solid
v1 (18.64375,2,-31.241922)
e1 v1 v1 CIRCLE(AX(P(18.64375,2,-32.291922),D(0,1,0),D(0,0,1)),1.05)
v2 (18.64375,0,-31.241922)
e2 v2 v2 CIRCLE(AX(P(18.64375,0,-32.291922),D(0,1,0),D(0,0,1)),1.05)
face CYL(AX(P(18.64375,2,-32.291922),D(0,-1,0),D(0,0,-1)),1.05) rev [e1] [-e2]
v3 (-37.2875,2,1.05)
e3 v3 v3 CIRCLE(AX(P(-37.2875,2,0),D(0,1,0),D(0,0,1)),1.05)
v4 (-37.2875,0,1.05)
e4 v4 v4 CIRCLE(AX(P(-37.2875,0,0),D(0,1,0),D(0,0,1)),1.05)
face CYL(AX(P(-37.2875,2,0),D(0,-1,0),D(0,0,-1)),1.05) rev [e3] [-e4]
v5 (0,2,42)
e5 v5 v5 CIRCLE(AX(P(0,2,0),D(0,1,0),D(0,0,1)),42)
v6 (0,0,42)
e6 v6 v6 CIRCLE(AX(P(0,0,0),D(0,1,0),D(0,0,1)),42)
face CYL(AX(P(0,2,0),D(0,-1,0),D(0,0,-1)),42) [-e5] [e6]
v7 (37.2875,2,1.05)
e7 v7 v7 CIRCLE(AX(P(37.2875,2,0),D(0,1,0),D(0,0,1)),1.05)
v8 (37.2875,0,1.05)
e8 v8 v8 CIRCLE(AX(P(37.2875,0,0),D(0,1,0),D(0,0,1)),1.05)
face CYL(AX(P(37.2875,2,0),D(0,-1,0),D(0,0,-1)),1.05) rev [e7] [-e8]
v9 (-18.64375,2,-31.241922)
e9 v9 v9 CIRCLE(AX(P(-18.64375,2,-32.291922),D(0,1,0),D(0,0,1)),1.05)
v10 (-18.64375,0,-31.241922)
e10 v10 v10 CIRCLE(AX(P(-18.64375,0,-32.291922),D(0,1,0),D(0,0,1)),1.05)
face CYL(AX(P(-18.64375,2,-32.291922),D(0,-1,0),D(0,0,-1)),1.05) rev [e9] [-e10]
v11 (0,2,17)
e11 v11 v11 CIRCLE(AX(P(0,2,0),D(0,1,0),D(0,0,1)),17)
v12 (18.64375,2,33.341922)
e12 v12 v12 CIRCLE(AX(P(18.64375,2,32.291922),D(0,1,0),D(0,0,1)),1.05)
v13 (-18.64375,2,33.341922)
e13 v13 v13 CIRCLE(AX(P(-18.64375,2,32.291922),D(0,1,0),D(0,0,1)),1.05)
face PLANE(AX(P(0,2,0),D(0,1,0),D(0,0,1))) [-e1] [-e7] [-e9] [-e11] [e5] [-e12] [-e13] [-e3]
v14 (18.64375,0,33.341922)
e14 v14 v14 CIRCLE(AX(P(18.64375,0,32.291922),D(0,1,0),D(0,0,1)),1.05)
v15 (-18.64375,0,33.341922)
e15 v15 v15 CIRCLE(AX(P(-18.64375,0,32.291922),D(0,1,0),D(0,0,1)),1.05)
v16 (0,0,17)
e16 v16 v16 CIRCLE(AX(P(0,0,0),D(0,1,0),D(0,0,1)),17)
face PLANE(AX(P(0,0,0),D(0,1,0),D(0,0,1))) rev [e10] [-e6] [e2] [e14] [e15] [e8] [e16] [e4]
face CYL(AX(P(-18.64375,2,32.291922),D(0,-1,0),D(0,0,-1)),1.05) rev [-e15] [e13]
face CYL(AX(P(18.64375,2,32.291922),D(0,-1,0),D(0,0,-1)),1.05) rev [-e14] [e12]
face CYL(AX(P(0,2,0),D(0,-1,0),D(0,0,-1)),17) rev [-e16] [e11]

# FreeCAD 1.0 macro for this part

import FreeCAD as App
import Part
import Sketcher
Q = App.Units.Quantity

doc = App.newDocument("Part")
body = doc.addObject("PartDesign::Body", "Body")

# Sketch on XZ plane
sketch1 = body.newObject("Sketcher::SketchObject", "Sketch")
sketch1.AttachmentSupport = (doc.getObject("XZ_Plane"), [""])
sketch1.MapMode = "FlatFace"
sketch1.addGeometry([
    Part.Circle(App.Vector(0, 0, 0), App.Vector(0, 0, 1), 42),  # 0
    Part.Circle(App.Vector(-18.6, -32.3, 0), App.Vector(0, 0, 1), 1.1),  # 1
    Part.Circle(App.Vector(-37.3, 0, 0), App.Vector(0, 0, 1), 1.1),  # 2
    Part.Circle(App.Vector(-18.6, 32.3, 0), App.Vector(0, 0, 1), 1.1),  # 3
    Part.Circle(App.Vector(18.6, -32.3, 0), App.Vector(0, 0, 1), 1.1),  # 4
    Part.Circle(App.Vector(37.3, 0, 0), App.Vector(0, 0, 1), 1.1),  # 5
    Part.Circle(App.Vector(0, 0, 0), App.Vector(0, 0, 1), 17),  # 6
    Part.Circle(App.Vector(18.6, 32.3, 0), App.Vector(0, 0, 1), 1.1),  # 7
], False)
sketch1.addConstraint([
    Sketcher.Constraint("Coincident", 0, 3, -1, 1),
    Sketcher.Constraint("Coincident", 6, 3, -1, 1),
    Sketcher.Constraint("Equal", 1, 2),
    Sketcher.Constraint("Equal", 2, 3),
    Sketcher.Constraint("Equal", 3, 4),
    Sketcher.Constraint("Equal", 4, 5),
    Sketcher.Constraint("Equal", 5, 7),
    Sketcher.Constraint("Symmetric", 3, 3, 4, 3, -1, 1),
    Sketcher.Constraint("Symmetric", 2, 3, 5, 3, -1, 1),
    Sketcher.Constraint("Symmetric", 1, 3, 7, 3, -1, 1),
    Sketcher.Constraint("Symmetric", 1, 3, 4, 3, -2),
    Sketcher.Constraint("PointOnObject", 2, 3, -1),
    Sketcher.Constraint("Diameter", 0, Q("84 mm")),
    Sketcher.Constraint("Diameter", 6, Q("34 mm")),
    Sketcher.Constraint("Diameter", 1, Q("2.1 mm")),
    Sketcher.Constraint("DistanceX", 2, 3, 5, 3, Q("74.575 mm")),
    Sketcher.Constraint("DistanceX", 1, 3, 4, 3, Q("37.2875 mm")),
    Sketcher.Constraint("DistanceY", 1, 3, -1, 1, Q("32.291922 mm")),
])
pad1 = body.newObject("PartDesign::Pad", "Pad")
pad1.Profile = sketch1
pad1.Length = 2
pad1.Reversed = True

doc.recompute()
